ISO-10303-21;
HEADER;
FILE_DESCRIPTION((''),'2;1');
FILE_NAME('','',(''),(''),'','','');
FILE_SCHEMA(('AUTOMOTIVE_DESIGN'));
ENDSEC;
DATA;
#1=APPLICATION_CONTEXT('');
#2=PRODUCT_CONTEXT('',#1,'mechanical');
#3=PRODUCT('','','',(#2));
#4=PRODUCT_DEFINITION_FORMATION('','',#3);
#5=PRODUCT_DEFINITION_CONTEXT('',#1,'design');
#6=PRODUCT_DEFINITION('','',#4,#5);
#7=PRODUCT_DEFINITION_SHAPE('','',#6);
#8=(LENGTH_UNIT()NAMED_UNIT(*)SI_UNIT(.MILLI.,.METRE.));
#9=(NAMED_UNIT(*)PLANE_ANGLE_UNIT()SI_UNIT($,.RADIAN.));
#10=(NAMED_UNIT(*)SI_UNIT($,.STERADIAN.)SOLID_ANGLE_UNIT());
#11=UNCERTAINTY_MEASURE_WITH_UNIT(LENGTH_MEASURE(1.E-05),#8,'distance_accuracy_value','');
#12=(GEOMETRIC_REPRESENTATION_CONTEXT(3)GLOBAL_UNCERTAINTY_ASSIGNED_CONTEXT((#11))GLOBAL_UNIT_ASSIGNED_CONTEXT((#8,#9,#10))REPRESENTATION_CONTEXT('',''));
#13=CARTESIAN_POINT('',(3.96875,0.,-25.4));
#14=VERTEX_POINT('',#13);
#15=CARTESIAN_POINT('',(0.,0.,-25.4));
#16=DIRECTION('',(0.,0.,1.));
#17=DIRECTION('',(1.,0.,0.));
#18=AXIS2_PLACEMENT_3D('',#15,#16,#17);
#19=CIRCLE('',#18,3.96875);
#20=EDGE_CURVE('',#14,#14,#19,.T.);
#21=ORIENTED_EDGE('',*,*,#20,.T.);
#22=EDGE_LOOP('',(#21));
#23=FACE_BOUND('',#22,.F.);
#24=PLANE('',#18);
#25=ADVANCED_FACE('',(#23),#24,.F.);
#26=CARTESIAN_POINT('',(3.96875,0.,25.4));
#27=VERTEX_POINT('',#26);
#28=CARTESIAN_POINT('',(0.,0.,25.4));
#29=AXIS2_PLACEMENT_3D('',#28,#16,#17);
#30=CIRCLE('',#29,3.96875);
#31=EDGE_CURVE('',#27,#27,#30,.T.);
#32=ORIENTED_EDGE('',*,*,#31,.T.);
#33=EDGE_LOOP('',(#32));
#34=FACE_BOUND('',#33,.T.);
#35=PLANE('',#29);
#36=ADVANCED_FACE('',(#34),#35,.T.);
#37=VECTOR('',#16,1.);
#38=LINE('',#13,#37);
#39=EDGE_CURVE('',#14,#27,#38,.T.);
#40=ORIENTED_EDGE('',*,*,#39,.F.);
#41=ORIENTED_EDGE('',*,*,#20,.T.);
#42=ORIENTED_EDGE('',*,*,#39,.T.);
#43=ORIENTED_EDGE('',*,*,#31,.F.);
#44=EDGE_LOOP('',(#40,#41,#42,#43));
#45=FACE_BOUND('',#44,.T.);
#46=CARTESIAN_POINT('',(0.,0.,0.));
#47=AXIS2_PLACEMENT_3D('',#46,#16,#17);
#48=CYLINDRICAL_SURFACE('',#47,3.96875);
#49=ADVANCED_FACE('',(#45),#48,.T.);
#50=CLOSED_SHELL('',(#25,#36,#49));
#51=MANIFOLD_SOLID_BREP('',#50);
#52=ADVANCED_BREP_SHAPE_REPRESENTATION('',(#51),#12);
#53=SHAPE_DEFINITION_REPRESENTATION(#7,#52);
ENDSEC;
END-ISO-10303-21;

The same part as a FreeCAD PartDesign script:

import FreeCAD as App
import Part
import Sketcher

V = App.Vector
Q = App.Units.Quantity

doc = App.newDocument("Part")
body = doc.addObject("PartDesign::Body", "Body")

sketch1 = body.newObject("Sketcher::SketchObject", "Sketch")
sketch1.AttachmentSupport = (doc.getObject("XY_Plane"), [""])
sketch1.MapMode = "FlatFace"
sketch1.addGeometry(Part.Circle(V(0, 0, 0), V(0, 0, 1), 4), False)
sketch1.addConstraint(Sketcher.Constraint("Coincident", 0, 3, -1, 1))
sketch1.addConstraint(Sketcher.Constraint("Diameter", 0, Q("0.3125 in")))
pad1 = body.newObject("PartDesign::Pad", "Pad")
pad1.Profile = sketch1
pad1.Length = Q("2 in")
pad1.Midplane = True

doc.recompute()
